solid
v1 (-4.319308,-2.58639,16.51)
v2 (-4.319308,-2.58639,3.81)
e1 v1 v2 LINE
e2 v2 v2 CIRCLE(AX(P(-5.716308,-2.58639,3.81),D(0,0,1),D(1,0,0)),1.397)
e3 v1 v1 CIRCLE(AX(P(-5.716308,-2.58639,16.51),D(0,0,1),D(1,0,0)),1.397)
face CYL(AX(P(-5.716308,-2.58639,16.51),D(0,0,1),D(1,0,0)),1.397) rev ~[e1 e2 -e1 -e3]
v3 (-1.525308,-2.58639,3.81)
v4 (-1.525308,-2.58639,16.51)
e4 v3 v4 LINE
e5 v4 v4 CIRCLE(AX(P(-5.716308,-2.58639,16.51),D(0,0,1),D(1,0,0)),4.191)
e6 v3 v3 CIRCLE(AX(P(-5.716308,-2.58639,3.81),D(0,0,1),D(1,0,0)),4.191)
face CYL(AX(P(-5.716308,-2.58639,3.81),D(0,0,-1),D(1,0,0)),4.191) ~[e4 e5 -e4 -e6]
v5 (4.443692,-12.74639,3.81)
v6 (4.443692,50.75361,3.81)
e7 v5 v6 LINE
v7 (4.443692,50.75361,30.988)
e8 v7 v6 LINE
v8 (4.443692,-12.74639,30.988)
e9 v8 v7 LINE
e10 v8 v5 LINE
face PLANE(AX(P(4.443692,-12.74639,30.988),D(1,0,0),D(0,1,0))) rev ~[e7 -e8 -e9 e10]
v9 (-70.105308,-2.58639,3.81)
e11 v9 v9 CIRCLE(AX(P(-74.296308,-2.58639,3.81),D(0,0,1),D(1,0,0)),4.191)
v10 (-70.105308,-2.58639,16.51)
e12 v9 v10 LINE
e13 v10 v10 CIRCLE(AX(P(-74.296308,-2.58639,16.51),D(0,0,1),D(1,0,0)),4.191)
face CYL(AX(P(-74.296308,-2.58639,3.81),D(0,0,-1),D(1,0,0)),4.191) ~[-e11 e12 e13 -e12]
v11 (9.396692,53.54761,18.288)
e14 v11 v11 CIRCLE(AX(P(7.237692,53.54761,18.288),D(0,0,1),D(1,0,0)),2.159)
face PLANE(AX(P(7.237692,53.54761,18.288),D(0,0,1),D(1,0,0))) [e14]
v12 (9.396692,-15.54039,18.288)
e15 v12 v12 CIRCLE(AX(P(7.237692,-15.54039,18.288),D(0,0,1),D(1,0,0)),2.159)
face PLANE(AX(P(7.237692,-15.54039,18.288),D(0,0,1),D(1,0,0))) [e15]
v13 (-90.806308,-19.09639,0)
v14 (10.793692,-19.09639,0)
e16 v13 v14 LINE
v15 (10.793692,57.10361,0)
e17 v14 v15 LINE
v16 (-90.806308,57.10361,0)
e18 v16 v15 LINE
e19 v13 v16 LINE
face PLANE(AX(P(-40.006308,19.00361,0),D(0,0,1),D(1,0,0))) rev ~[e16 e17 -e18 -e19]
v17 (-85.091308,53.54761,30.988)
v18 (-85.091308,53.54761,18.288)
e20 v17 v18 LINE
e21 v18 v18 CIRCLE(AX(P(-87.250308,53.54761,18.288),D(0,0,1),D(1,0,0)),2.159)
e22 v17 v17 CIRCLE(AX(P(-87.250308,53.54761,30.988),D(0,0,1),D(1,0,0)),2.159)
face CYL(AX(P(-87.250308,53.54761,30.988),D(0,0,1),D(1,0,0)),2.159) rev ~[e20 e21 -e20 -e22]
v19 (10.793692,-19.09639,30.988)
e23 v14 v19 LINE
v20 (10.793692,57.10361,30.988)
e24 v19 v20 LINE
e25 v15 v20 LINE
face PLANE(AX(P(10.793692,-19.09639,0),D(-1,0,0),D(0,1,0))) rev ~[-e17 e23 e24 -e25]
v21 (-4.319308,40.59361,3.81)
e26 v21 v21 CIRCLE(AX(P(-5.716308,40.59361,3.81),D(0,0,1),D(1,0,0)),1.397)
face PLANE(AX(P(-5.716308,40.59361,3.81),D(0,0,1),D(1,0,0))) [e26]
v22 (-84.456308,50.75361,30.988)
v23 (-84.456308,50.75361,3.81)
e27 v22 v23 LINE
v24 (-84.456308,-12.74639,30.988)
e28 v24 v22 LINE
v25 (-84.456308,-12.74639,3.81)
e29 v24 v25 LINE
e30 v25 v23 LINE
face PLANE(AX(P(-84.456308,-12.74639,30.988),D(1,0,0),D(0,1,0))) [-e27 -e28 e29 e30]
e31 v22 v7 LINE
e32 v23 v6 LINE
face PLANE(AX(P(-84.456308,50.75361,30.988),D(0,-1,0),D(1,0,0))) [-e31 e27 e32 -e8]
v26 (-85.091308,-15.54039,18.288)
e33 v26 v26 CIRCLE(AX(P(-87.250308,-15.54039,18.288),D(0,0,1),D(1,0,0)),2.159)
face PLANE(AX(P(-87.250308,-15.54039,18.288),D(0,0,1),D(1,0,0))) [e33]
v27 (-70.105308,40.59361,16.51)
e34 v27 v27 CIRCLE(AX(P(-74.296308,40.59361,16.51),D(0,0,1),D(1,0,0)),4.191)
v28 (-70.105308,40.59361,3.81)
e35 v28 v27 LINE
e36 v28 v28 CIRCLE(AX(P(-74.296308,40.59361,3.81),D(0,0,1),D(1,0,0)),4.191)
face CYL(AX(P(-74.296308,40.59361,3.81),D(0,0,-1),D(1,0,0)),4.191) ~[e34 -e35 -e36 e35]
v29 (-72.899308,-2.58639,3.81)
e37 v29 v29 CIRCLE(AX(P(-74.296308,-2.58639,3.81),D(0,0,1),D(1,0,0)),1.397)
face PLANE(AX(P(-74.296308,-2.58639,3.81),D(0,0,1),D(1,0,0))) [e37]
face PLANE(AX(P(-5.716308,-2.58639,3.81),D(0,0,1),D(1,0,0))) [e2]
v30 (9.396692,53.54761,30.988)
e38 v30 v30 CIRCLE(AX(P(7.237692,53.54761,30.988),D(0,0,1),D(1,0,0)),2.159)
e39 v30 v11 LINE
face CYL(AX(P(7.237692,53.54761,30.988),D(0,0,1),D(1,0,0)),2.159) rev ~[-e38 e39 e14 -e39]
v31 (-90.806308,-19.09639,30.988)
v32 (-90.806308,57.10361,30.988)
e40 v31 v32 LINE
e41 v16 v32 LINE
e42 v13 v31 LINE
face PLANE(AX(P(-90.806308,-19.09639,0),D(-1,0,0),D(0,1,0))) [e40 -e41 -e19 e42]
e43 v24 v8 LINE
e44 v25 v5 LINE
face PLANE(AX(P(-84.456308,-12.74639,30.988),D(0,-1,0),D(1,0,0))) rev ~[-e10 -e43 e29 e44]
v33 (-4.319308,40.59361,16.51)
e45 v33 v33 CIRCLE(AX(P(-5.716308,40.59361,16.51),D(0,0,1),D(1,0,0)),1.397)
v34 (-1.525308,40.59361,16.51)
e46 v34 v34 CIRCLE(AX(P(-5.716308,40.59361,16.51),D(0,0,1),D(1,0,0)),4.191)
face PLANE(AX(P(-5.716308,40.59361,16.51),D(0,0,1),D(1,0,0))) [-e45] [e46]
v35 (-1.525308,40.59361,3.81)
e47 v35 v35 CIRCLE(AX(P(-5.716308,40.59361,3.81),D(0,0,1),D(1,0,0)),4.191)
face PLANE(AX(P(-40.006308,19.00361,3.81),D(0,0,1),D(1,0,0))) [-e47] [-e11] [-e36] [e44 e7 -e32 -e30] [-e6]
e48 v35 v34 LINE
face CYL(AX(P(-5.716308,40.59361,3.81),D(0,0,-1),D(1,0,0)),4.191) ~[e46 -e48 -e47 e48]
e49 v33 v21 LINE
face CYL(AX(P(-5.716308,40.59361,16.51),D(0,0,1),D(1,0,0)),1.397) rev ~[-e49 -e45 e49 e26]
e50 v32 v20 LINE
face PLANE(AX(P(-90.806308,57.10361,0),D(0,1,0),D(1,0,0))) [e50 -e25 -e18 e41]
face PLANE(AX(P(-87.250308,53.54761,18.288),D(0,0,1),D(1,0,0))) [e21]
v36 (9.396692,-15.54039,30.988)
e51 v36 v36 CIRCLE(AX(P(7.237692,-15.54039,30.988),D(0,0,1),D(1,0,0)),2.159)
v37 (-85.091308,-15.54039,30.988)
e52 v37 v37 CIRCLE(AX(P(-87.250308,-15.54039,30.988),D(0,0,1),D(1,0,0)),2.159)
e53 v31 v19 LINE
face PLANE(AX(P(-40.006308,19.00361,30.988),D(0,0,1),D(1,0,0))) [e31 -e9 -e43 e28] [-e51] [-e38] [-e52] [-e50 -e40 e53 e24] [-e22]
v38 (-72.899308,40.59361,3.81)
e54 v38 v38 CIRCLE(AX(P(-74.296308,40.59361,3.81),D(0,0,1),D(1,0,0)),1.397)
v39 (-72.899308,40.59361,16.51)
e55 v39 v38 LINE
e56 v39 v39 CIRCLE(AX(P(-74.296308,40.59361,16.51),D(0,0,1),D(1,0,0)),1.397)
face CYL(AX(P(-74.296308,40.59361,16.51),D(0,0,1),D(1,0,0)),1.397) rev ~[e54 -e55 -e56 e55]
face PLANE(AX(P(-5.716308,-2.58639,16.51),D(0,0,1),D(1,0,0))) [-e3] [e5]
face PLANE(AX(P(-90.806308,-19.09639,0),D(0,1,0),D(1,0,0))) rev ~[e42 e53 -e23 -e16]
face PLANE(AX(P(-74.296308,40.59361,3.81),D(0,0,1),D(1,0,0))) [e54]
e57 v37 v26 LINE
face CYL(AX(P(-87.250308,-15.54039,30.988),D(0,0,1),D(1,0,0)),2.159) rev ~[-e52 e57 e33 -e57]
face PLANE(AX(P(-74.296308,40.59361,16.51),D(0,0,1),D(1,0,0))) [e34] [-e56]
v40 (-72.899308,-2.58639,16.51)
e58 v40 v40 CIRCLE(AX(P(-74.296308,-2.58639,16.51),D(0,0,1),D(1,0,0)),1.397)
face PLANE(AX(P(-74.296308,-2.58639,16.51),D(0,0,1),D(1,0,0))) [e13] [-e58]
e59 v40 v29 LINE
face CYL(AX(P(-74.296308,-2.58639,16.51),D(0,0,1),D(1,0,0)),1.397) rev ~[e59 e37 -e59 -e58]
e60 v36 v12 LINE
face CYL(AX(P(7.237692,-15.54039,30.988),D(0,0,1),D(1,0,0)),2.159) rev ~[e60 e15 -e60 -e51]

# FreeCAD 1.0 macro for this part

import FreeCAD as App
import Part
import Sketcher
from FreeCAD import Vector
Q = App.Units.Quantity


def add_polygon(sketch, points):
    """Adds a closed chain of lines whose ends are joined by coincident constraints."""
    first, n = sketch.GeometryCount, len(points)
    for a, b in zip(points, points[1:] + points[:1]):
        sketch.addGeometry(Part.LineSegment(App.Vector(*a, 0), App.Vector(*b, 0)), False)
    for i in range(n):
        sketch.addConstraint(Sketcher.Constraint("Coincident", first + i, 2, first + (i + 1) % n, 1))

doc = App.newDocument("Part")
body = doc.addObject("PartDesign::Body", "Body")

# Sketch on XY plane
sketch1 = doc.addObject("Sketcher::SketchObject", "Sketch")
body.addObject(sketch1)
sketch1.AttachmentSupport = (doc.XY_Plane, [""])
sketch1.MapMode = "FlatFace"
add_polygon(sketch1, [(-90.806308, 57.10361), (-90.806308, -19.09639), (10.793692, -19.09639), (10.793692, 57.10361)])  # lines 0-3
sketch1.addConstraint([
    Sketcher.Constraint("Vertical", 0),
    Sketcher.Constraint("Horizontal", 1),
    Sketcher.Constraint("Vertical", 2),
    Sketcher.Constraint("Horizontal", 3),
    Sketcher.Constraint("DistanceX", 1, 1, 1, 2, Q("4 in")),
    Sketcher.Constraint("DistanceY", 0, 2, 0, 1, Q("3 in")),
    Sketcher.Constraint("DistanceX", 0, 2, -1, 1, 90.806308),
    Sketcher.Constraint("DistanceY", 0, 2, -1, 1, 19.09639),
])
pad1 = doc.addObject("PartDesign::Pad", "Pad")
body.addObject(pad1)
pad1.Profile = sketch1
pad1.Length = Q("1.22 in")

# Sketch on XY plane
sketch2 = doc.addObject("Sketcher::SketchObject", "Sketch001")
body.addObject(sketch2)
sketch2.AttachmentSupport = (doc.XY_Plane, [""])
sketch2.MapMode = "FlatFace"
sketch2.AttachmentOffset = App.Placement(Vector(0, 0, 1.22 * 25.4), App.Rotation())
add_polygon(sketch2, [(-84.456308, 50.75361), (-84.456308, -12.74639), (4.443692, -12.74639), (4.443692, 50.75361)])  # lines 0-3
sketch2.addConstraint([
    Sketcher.Constraint("Vertical", 0),
    Sketcher.Constraint("Horizontal", 1),
    Sketcher.Constraint("Vertical", 2),
    Sketcher.Constraint("Horizontal", 3),
    Sketcher.Constraint("DistanceX", 1, 1, 1, 2, Q("3.5 in")),
    Sketcher.Constraint("DistanceY", 0, 2, 0, 1, Q("2.5 in")),
    Sketcher.Constraint("DistanceX", 0, 2, -1, 1, 84.456308),
    Sketcher.Constraint("DistanceY", 0, 2, -1, 1, 12.74639),
])
pocket1 = doc.addObject("PartDesign::Pocket", "Pocket")
body.addObject(pocket1)
pocket1.Profile = sketch2
pocket1.Length = Q("1.07 in")

# Sketch on XY plane
sketch3 = doc.addObject("Sketcher::SketchObject", "Sketch002")
body.addObject(sketch3)
sketch3.AttachmentSupport = (doc.XY_Plane, [""])
sketch3.MapMode = "FlatFace"
sketch3.AttachmentOffset = App.Placement(Vector(0, 0, 0.15 * 25.4), App.Rotation())
sketch3.addGeometry([
    Part.Circle(Vector(-74.296308, 40.59361, 0), Vector(0, 0, 1), 4.191),
    Part.Circle(Vector(-5.716308, 40.59361, 0), Vector(0, 0, 1), 4.191),
    Part.Circle(Vector(-5.716308, -2.58639, 0), Vector(0, 0, 1), 4.191),
    Part.Circle(Vector(-74.296308, -2.58639, 0), Vector(0, 0, 1), 4.191),
], False)
sketch3.addConstraint([
    Sketcher.Constraint("Equal", 0, 1),
    Sketcher.Constraint("Equal", 1, 2),
    Sketcher.Constraint("Equal", 2, 3),
    Sketcher.Constraint("Horizontal", 0, 3, 1, 3),
    Sketcher.Constraint("Horizontal", 2, 3, 3, 3),
    Sketcher.Constraint("Vertical", 1, 3, 2, 3),
    Sketcher.Constraint("Vertical", 0, 3, 3, 3),
    Sketcher.Constraint("Diameter", 0, Q("0.33 in")),
    Sketcher.Constraint("DistanceX", 0, 3, 1, 3, Q("2.7 in")),
    Sketcher.Constraint("DistanceY", 2, 3, 1, 3, Q("1.7 in")),
    Sketcher.Constraint("DistanceY", -1, 1, 0, 3, 40.59361),
    Sketcher.Constraint("DistanceX", 0, 3, -1, 1, 74.296308),
])
pad2 = doc.addObject("PartDesign::Pad", "Pad001")
body.addObject(pad2)
pad2.Profile = sketch3
pad2.Length = Q("0.5 in")

# Sketch on XY plane
sketch4 = doc.addObject("Sketcher::SketchObject", "Sketch003")
body.addObject(sketch4)
sketch4.AttachmentSupport = (doc.XY_Plane, [""])
sketch4.MapMode = "FlatFace"
sketch4.AttachmentOffset = App.Placement(Vector(0, 0, 0.65 * 25.4), App.Rotation())
sketch4.addGeometry([
    Part.Circle(Vector(-74.296308, 40.59361, 0), Vector(0, 0, 1), 1.397),
    Part.Circle(Vector(-74.296308, -2.58639, 0), Vector(0, 0, 1), 1.397),
    Part.Circle(Vector(-5.716308, -2.58639, 0), Vector(0, 0, 1), 1.397),
    Part.Circle(Vector(-5.716308, 40.59361, 0), Vector(0, 0, 1), 1.397),
], False)
sketch4.addConstraint([
    Sketcher.Constraint("Equal", 0, 1),
    Sketcher.Constraint("Equal", 1, 2),
    Sketcher.Constraint("Equal", 2, 3),
    Sketcher.Constraint("Horizontal", 1, 3, 2, 3),
    Sketcher.Constraint("Horizontal", 0, 3, 3, 3),
    Sketcher.Constraint("Vertical", 0, 3, 1, 3),
    Sketcher.Constraint("Vertical", 2, 3, 3, 3),
    Sketcher.Constraint("Diameter", 0, Q("0.11 in")),
    Sketcher.Constraint("DistanceY", 1, 3, 0, 3, Q("1.7 in")),
    Sketcher.Constraint("DistanceX", 1, 3, 2, 3, Q("2.7 in")),
    Sketcher.Constraint("DistanceY", -1, 1, 0, 3, 40.59361),
    Sketcher.Constraint("DistanceX", 0, 3, -1, 1, 74.296308),
])
pocket2 = doc.addObject("PartDesign::Pocket", "Pocket001")
body.addObject(pocket2)
pocket2.Profile = sketch4
pocket2.Length = Q("0.5 in")

# Sketch on XY plane
sketch5 = doc.addObject("Sketcher::SketchObject", "Sketch004")
body.addObject(sketch5)
sketch5.AttachmentSupport = (doc.XY_Plane, [""])
sketch5.MapMode = "FlatFace"
sketch5.AttachmentOffset = App.Placement(Vector(0, 0, 1.22 * 25.4), App.Rotation())
sketch5.addGeometry([
    Part.Circle(Vector(-87.250308, 53.54761, 0), Vector(0, 0, 1), 2.159),
    Part.Circle(Vector(-87.250308, -15.54039, 0), Vector(0, 0, 1), 2.159),
    Part.Circle(Vector(7.237692, -15.54039, 0), Vector(0, 0, 1), 2.159),
    Part.Circle(Vector(7.237692, 53.54761, 0), Vector(0, 0, 1), 2.159),
], False)
sketch5.addConstraint([
    Sketcher.Constraint("Equal", 0, 1),
    Sketcher.Constraint("Equal", 1, 2),
    Sketcher.Constraint("Equal", 2, 3),
    Sketcher.Constraint("Horizontal", 1, 3, 2, 3),
    Sketcher.Constraint("Horizontal", 0, 3, 3, 3),
    Sketcher.Constraint("Vertical", 0, 3, 1, 3),
    Sketcher.Constraint("Vertical", 2, 3, 3, 3),
    Sketcher.Constraint("Diameter", 0, Q("0.17 in")),
    Sketcher.Constraint("DistanceY", 1, 3, 0, 3, Q("2.72 in")),
    Sketcher.Constraint("DistanceX", 1, 3, 2, 3, Q("3.72 in")),
    Sketcher.Constraint("DistanceX", 0, 3, -1, 1, 87.250308),
    Sketcher.Constraint("DistanceY", -1, 1, 0, 3, 53.54761),
])
pocket3 = doc.addObject("PartDesign::Pocket", "Pocket002")
body.addObject(pocket3)
pocket3.Profile = sketch5
pocket3.Length = Q("0.5 in")

doc.recompute()
